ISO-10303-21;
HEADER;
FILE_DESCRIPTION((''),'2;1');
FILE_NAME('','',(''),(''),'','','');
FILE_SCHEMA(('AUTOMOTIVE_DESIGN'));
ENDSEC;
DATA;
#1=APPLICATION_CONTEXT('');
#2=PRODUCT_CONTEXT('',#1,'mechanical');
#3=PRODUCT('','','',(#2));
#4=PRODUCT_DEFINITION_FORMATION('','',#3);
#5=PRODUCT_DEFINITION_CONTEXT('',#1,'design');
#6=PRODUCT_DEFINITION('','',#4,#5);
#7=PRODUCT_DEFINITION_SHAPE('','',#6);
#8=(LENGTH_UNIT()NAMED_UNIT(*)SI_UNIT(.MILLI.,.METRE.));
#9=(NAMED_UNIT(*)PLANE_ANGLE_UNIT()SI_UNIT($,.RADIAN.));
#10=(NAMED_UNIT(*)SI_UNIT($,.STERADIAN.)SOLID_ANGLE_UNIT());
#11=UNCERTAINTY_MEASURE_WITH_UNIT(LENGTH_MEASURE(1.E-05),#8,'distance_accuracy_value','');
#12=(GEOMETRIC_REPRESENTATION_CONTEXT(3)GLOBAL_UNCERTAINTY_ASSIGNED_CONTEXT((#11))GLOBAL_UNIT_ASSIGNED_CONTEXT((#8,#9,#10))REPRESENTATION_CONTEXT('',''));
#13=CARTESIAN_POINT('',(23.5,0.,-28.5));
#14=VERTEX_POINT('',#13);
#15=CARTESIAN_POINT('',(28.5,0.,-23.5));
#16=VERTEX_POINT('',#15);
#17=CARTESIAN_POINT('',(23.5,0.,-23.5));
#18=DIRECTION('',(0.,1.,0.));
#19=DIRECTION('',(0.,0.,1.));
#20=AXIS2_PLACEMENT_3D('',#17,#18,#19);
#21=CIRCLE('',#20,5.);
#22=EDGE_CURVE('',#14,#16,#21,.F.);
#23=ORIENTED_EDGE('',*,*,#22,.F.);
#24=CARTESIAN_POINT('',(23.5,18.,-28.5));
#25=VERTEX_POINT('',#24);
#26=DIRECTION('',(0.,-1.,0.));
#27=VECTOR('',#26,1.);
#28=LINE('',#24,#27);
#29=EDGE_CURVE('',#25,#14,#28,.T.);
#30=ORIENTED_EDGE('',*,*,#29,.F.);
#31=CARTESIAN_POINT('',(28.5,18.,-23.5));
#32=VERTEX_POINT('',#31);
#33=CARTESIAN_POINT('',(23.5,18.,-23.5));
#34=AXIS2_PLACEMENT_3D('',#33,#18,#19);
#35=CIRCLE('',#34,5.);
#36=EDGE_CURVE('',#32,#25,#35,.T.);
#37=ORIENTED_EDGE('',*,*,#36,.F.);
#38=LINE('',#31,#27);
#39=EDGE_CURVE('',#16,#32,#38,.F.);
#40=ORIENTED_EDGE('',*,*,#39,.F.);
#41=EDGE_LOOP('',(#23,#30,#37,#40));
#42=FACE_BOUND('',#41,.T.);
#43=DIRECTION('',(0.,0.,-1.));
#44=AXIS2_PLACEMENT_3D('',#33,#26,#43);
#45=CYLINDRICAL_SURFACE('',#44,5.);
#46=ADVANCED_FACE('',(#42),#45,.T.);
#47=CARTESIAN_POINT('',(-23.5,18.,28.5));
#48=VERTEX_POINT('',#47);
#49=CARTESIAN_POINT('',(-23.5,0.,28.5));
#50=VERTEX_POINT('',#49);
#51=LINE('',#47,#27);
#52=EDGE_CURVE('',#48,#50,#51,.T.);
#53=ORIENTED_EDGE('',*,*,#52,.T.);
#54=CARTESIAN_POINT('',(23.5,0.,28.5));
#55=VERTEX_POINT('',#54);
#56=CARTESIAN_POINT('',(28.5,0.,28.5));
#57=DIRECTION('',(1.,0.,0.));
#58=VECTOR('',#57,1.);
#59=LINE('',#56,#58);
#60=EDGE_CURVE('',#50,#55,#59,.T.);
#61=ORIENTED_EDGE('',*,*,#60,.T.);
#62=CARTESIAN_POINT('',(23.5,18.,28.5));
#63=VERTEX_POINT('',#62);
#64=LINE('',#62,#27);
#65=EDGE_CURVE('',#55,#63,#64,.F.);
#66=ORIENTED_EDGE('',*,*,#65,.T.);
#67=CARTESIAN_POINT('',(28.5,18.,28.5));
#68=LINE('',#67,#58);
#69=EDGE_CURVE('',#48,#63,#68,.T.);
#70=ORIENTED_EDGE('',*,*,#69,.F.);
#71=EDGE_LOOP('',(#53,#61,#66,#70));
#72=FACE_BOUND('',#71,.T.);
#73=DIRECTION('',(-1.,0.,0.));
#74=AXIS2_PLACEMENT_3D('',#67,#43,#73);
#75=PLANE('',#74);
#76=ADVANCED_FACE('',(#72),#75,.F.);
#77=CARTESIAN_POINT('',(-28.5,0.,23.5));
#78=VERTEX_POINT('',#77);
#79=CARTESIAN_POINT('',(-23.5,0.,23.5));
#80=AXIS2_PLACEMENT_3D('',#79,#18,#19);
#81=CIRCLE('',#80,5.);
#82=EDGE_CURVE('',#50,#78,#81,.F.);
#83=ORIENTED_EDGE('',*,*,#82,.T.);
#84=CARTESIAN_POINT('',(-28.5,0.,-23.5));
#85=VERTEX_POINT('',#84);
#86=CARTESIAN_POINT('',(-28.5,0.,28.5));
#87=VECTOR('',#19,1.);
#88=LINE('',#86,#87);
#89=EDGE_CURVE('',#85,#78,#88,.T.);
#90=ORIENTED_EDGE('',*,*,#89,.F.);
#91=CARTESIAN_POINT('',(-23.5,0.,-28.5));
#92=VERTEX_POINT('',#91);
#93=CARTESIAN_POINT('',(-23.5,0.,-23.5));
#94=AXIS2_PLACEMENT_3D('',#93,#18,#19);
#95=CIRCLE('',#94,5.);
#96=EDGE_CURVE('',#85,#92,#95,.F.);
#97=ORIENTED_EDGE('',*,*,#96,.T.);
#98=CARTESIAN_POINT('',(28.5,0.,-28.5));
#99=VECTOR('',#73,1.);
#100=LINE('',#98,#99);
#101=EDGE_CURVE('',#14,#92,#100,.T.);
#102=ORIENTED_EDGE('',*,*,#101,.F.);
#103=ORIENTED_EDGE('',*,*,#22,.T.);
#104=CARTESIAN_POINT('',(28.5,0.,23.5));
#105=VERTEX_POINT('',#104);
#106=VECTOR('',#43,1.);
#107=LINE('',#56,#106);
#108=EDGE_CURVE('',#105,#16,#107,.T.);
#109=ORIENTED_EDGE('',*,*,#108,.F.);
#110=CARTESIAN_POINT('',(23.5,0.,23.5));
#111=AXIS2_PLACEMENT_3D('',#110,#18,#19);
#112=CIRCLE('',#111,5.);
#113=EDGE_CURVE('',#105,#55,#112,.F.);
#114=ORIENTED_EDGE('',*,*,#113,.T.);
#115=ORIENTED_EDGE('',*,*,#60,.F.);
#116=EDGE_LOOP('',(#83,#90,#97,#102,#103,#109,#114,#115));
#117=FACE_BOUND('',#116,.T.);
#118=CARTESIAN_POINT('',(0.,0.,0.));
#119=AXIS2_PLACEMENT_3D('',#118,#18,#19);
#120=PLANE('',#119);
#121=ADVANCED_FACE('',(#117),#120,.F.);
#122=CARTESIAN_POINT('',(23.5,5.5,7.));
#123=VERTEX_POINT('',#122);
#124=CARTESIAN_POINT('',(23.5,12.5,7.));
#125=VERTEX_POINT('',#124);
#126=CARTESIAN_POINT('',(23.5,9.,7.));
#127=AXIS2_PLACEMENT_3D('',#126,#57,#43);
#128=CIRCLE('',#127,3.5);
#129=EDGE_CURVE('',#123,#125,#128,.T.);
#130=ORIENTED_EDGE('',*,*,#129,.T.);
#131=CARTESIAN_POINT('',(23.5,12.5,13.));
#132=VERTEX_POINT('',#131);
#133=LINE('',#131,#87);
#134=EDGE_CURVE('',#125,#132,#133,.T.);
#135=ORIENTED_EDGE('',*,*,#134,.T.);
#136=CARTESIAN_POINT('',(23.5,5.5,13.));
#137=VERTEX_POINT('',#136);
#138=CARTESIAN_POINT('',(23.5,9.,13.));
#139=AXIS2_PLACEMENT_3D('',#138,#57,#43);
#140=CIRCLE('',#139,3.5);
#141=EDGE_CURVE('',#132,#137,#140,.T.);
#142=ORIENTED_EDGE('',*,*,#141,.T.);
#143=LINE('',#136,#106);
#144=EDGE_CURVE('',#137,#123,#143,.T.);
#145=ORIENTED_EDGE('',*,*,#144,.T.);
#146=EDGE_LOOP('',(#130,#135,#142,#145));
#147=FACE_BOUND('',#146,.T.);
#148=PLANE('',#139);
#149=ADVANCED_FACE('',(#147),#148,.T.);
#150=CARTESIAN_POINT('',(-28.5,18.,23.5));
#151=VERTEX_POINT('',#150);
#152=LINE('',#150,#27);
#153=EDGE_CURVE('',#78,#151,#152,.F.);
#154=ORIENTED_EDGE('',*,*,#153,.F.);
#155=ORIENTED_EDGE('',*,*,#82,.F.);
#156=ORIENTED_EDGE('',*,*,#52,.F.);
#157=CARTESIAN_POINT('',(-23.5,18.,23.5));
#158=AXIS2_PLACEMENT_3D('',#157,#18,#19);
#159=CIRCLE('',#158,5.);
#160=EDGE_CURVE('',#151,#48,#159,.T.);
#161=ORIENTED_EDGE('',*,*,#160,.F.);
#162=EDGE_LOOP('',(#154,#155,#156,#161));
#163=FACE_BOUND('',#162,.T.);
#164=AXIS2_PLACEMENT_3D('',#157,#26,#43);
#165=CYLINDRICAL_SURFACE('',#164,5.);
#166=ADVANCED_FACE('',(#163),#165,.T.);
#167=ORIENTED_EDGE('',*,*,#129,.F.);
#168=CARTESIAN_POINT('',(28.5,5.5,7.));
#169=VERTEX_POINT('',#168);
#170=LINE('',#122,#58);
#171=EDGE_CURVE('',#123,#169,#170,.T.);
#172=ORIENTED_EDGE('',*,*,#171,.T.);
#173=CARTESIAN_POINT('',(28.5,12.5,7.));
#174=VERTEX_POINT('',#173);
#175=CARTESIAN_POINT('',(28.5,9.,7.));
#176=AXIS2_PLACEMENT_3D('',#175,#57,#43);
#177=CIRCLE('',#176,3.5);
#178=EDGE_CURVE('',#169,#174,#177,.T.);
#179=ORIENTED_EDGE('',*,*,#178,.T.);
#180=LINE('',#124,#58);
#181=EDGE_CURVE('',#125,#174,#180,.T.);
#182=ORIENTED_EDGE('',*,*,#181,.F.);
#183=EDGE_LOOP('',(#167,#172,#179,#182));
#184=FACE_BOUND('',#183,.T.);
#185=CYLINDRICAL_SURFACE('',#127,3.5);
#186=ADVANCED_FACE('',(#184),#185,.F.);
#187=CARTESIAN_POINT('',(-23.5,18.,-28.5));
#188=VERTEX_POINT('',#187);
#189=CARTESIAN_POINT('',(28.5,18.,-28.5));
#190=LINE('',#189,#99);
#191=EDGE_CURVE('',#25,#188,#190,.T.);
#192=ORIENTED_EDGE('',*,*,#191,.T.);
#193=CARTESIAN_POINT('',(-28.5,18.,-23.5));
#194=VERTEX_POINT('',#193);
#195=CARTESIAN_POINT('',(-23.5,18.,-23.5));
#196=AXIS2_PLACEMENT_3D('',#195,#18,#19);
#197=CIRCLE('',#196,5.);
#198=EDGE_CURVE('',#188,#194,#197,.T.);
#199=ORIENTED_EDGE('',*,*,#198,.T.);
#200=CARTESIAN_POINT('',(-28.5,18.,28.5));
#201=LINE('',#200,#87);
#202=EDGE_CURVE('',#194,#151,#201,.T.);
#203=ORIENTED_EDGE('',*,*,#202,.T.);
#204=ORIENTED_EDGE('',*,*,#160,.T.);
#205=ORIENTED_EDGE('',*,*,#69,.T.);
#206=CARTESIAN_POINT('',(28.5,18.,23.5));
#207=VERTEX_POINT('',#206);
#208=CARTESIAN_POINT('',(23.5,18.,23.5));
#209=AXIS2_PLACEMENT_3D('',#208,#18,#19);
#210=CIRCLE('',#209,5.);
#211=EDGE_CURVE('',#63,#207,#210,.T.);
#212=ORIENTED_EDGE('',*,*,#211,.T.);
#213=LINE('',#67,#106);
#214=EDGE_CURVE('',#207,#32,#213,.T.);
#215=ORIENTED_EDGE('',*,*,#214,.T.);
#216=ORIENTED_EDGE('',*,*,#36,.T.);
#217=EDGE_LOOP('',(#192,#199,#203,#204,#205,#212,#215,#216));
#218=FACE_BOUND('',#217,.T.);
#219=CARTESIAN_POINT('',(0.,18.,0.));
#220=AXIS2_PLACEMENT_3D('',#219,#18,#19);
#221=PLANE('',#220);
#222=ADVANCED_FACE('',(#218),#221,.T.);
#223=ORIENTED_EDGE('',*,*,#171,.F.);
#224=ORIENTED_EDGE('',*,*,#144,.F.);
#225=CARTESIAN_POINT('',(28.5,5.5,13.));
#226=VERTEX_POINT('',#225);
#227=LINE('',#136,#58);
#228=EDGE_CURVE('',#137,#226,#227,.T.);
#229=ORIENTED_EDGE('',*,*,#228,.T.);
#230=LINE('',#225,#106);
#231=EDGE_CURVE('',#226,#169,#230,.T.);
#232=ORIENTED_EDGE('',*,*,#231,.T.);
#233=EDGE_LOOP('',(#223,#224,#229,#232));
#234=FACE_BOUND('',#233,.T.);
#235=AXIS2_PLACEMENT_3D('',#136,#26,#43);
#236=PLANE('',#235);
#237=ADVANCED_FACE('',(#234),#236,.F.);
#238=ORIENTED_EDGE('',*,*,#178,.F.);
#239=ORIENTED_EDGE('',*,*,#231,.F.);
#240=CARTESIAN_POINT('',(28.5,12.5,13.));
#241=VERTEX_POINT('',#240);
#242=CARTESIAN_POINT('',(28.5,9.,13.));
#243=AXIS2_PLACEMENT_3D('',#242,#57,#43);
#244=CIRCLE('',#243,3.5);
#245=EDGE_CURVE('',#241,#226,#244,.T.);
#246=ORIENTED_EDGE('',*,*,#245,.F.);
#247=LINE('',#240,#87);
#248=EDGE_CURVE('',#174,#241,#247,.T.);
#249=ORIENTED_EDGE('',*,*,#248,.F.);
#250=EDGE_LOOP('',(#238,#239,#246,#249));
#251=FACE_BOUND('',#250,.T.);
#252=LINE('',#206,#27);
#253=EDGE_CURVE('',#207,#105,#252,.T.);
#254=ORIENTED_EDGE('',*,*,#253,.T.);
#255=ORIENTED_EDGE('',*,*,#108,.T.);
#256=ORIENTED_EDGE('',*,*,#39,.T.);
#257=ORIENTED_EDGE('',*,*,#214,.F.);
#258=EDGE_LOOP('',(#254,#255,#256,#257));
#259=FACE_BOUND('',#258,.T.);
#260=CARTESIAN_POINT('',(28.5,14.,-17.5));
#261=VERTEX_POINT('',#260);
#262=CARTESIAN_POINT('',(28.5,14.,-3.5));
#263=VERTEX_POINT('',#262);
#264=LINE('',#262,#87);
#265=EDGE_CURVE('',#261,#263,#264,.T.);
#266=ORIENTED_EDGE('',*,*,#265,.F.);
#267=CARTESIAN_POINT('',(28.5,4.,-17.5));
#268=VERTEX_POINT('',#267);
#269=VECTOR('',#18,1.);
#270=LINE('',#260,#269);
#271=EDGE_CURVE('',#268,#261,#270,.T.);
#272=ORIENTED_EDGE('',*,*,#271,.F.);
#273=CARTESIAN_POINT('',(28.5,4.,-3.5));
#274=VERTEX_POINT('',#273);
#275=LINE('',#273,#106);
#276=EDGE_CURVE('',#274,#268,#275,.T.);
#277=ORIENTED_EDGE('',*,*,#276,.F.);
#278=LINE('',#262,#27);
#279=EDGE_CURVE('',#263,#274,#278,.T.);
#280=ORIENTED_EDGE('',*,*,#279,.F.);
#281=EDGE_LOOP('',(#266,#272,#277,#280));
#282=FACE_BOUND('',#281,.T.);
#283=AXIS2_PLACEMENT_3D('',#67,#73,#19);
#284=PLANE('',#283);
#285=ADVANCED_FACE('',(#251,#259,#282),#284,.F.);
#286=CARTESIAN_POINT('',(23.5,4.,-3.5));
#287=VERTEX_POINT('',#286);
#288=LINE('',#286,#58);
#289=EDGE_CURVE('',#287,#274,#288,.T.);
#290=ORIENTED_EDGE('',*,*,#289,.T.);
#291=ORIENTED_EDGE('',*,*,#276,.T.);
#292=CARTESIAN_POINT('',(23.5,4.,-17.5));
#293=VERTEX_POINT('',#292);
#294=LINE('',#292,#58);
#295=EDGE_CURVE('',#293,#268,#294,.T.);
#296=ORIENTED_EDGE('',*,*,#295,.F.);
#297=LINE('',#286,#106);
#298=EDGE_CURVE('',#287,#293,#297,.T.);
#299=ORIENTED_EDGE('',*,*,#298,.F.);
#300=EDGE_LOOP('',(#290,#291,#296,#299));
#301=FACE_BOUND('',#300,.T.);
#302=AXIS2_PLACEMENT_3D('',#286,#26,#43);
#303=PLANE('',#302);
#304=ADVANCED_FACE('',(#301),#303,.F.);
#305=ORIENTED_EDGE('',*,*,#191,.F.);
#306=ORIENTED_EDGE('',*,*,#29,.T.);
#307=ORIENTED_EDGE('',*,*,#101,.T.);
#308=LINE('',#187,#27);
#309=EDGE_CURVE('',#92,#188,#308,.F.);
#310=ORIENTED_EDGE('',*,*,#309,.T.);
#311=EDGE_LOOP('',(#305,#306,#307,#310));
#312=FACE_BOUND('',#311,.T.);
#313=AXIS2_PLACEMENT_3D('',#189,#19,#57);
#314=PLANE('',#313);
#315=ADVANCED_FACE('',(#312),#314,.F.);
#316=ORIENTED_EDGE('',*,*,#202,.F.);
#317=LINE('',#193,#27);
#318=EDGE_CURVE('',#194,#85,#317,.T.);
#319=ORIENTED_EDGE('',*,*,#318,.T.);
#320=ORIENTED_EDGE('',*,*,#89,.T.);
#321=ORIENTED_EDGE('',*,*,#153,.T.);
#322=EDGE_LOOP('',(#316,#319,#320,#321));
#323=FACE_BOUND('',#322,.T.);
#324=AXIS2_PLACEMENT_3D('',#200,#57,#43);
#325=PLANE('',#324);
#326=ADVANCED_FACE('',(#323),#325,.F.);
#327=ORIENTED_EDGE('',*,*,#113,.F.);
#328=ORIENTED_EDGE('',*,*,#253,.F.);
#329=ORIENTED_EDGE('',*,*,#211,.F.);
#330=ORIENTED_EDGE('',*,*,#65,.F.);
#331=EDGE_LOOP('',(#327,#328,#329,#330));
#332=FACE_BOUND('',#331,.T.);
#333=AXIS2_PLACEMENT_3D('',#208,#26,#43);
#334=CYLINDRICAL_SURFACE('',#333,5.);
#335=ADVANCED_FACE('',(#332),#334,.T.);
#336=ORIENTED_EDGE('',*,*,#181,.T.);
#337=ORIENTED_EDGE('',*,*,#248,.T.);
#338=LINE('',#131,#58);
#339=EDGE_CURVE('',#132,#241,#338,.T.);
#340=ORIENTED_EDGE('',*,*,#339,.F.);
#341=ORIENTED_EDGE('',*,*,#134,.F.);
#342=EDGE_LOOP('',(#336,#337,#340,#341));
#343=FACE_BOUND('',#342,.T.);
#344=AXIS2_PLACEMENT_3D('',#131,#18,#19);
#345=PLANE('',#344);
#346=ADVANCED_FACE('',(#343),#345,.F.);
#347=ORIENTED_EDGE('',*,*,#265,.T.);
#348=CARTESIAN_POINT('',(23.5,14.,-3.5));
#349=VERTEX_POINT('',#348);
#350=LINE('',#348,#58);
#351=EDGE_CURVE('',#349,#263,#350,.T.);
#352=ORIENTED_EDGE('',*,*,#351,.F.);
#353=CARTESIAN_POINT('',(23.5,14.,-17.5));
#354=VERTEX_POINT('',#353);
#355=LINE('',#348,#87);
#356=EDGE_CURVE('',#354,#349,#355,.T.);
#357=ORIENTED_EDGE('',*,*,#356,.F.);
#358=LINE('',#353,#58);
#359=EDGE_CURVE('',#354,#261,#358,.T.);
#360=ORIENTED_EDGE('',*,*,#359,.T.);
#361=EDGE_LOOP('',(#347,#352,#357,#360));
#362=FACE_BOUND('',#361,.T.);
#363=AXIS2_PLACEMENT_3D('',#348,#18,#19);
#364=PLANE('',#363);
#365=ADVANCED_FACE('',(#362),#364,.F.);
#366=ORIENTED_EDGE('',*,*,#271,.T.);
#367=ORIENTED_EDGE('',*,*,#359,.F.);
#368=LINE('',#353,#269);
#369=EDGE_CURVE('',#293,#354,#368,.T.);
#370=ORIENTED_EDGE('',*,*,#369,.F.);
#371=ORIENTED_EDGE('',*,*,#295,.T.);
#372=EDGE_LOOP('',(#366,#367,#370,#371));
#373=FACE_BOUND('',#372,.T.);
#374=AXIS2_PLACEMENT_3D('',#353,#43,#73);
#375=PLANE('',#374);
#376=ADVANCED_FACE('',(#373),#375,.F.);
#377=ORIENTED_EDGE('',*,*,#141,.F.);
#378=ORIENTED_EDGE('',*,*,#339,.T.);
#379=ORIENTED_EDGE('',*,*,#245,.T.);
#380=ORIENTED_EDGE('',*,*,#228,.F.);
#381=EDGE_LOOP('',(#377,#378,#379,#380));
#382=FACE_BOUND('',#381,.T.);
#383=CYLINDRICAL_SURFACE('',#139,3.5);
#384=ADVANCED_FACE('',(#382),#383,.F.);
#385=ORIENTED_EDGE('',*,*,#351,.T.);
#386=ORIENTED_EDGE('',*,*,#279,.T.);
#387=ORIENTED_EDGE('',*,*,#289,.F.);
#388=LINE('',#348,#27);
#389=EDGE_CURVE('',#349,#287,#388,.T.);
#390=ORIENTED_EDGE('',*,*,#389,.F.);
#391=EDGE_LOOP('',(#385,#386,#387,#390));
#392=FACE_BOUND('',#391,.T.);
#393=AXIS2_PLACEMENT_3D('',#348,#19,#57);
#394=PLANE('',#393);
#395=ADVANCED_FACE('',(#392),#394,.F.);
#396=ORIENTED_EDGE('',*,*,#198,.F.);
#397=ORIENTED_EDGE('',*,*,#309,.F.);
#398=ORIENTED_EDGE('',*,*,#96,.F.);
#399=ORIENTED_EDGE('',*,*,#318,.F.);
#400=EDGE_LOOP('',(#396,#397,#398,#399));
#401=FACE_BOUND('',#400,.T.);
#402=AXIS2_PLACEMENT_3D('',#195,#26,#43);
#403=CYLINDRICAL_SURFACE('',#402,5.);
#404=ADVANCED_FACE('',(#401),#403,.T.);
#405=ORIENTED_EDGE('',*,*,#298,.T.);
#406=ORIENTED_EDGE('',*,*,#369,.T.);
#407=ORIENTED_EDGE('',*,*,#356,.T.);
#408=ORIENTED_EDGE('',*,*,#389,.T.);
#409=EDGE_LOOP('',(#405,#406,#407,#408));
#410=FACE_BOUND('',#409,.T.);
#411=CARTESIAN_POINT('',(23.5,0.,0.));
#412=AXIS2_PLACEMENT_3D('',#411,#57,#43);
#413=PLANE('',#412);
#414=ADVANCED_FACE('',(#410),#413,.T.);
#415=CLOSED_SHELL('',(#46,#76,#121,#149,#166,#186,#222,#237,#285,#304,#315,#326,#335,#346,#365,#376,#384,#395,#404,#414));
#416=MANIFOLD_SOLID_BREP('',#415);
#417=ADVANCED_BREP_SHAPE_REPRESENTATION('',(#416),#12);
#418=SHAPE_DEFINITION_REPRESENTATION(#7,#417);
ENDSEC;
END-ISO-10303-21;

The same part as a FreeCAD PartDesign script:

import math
import FreeCAD as App
import Part
import Sketcher

V = App.Vector
Q = App.Units.Quantity


def edges_at(feature, points):
    """Names of the edges that pass closest to the given points."""
    edges = feature.Shape.Edges
    near = lambda p: min(range(len(edges)), key=lambda i: edges[i].distToShape(Part.Vertex(*p))[0])
    return sorted({f"Edge{near(p) + 1}" for p in points})


def add_polygon(sketch, points):
    """Adds a closed chain of lines whose ends are joined by coincident constraints."""
    first, n = sketch.GeometryCount, len(points)
    for a, b in zip(points, points[1:] + points[:1]):
        sketch.addGeometry(Part.LineSegment(App.Vector(*a, 0), App.Vector(*b, 0)), False)
    for i in range(n):
        sketch.addConstraint(Sketcher.Constraint("Coincident", first + i, 2, first + (i + 1) % n, 1))

doc = App.newDocument("Part")
body = doc.addObject("PartDesign::Body", "Body")

sketch1 = doc.addObject("Sketcher::SketchObject", "Sketch")
body.addObject(sketch1)
sketch1.AttachmentSupport = (doc.XZ_Plane, [""])
sketch1.MapMode = "FlatFace"
add_polygon(sketch1, [(-28, -28), (-28, 28), (28, 28), (28, -28)])
sketch1.addConstraint([
    Sketcher.Constraint("Vertical", 0),
    Sketcher.Constraint("Horizontal", 1),
    Sketcher.Constraint("Vertical", 2),
    Sketcher.Constraint("Horizontal", 3),
    Sketcher.Constraint("Symmetric", 0, 2, 2, 2, -1, 1),
    Sketcher.Constraint("Equal", 3, 0),
    Sketcher.Constraint("DistanceX", 1, 1, 1, 2, Q("57 mm")),
])
pad1 = doc.addObject("PartDesign::Pad", "Pad")
body.addObject(pad1)
pad1.Profile = sketch1
pad1.Length = 18
pad1.Reversed = True
doc.recompute()

fillet = doc.addObject("PartDesign::Fillet", "Fillet")
body.addObject(fillet)
fillet.Base = (pad1, edges_at(pad1, [
    (-28.5, 9, -28.5),
    (28.5, 9, -28.5),
    (28.5, 9, 28.5),
    (-28.5, 9, 28.5),
]))
fillet.Radius = 5

sketch2 = doc.addObject("Sketcher::SketchObject", "Sketch001")
body.addObject(sketch2)
sketch2.AttachmentSupport = (doc.YZ_Plane, [""])
sketch2.MapMode = "FlatFace"
sketch2.AttachmentOffset = App.Placement(V(0, 0, 28.5), App.Rotation())
sketch2.addGeometry(Part.LineSegment(V(12.5, 7, 0), V(12.5, 13, 0)), False)
sketch2.addGeometry(Part.ArcOfCircle(Part.Circle(V(9, 13, 0), V(0, 0, 1), 3.5), math.radians(0), math.radians(180)), False)
sketch2.addGeometry(Part.LineSegment(V(5.5, 13, 0), V(5.5, 7, 0)), False)
sketch2.addGeometry(Part.ArcOfCircle(Part.Circle(V(9, 7, 0), V(0, 0, 1), 3.5), math.radians(180), math.radians(360)), False)
add_polygon(sketch2, [(14, -3.5), (4, -3.5), (4, -17.5), (14, -17.5)])
sketch2.addConstraint([
    Sketcher.Constraint("Tangent", 0, 2, 1, 1),
    Sketcher.Constraint("Tangent", 1, 2, 2, 1),
    Sketcher.Constraint("Tangent", 2, 2, 3, 1),
    Sketcher.Constraint("Tangent", 3, 2, 0, 1),
    Sketcher.Constraint("Vertical", 0),
    Sketcher.Constraint("Vertical", 2),
    Sketcher.Constraint("Horizontal", 4),
    Sketcher.Constraint("Vertical", 5),
    Sketcher.Constraint("Horizontal", 6),
    Sketcher.Constraint("Vertical", 7),
    Sketcher.Constraint("Radius", 1, Q("3.5 mm")),
    Sketcher.Constraint("DistanceX", 4, 2, 4, 1, Q("10 mm")),
    Sketcher.Constraint("DistanceY", 0, 1, 0, 2, Q("6 mm")),
    Sketcher.Constraint("DistanceY", 5, 2, 5, 1, Q("14 mm")),
    Sketcher.Constraint("DistanceX", -1, 1, 1, 3, Q("9 mm")),
    Sketcher.Constraint("DistanceY", -1, 1, 1, 3, Q("13 mm")),
    Sketcher.Constraint("DistanceX", -1, 1, 4, 2, Q("4 mm")),
    Sketcher.Constraint("DistanceY", 4, 2, -1, 1, Q("3.5 mm")),
])
pocket1 = doc.addObject("PartDesign::Pocket", "Pocket")
body.addObject(pocket1)
pocket1.Profile = sketch2
pocket1.Length = 5

doc.recompute()
